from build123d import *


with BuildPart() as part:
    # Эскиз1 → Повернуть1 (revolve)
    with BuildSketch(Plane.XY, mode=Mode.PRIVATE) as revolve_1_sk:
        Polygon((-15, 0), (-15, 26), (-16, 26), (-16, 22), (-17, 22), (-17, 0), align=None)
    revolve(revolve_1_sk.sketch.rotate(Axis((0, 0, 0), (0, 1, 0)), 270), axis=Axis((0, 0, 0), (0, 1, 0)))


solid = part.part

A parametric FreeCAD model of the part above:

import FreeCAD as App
import Part
import Sketcher
from FreeCAD import Vector

doc = App.newDocument("Part")
body = doc.addObject("PartDesign::Body", "Body")

# Sketch on XY plane
sketch1 = body.newObject("Sketcher::SketchObject", "Sketch")
sketch1.AttachmentSupport = (doc.getObject("XY_Plane"), [""])
sketch1.MapMode = "FlatFace"
sketch1.addGeometry(Part.LineSegment(Vector(-15, 0, 0), Vector(-15, 26, 0)), False)
sketch1.addGeometry(Part.LineSegment(Vector(-15, 26, 0), Vector(-16, 26, 0)), False)
sketch1.addGeometry(Part.LineSegment(Vector(-16, 26, 0), Vector(-16, 22, 0)), False)
sketch1.addGeometry(Part.LineSegment(Vector(-16, 22, 0), Vector(-17, 22, 0)), False)
sketch1.addGeometry(Part.LineSegment(Vector(-17, 22, 0), Vector(-17, 0, 0)), False)
sketch1.addGeometry(Part.LineSegment(Vector(-17, 0, 0), Vector(-15, 0, 0)), False)
sketch1.addConstraint(Sketcher.Constraint("Coincident", 0, 2, 1, 1))
sketch1.addConstraint(Sketcher.Constraint("Coincident", 1, 2, 2, 1))
sketch1.addConstraint(Sketcher.Constraint("Coincident", 2, 2, 3, 1))
sketch1.addConstraint(Sketcher.Constraint("Coincident", 3, 2, 4, 1))
sketch1.addConstraint(Sketcher.Constraint("Coincident", 4, 2, 5, 1))
sketch1.addConstraint(Sketcher.Constraint("Coincident", 5, 2, 0, 1))
sketch1.addConstraint(Sketcher.Constraint("Vertical", 0))
sketch1.addConstraint(Sketcher.Constraint("Horizontal", 1))
sketch1.addConstraint(Sketcher.Constraint("Vertical", 2))
sketch1.addConstraint(Sketcher.Constraint("Horizontal", 3))
sketch1.addConstraint(Sketcher.Constraint("Vertical", 4))
sketch1.addConstraint(Sketcher.Constraint("Horizontal", 5))
sketch1.addConstraint(Sketcher.Constraint("PointOnObject", 4, 2, -1))
sketch1.addConstraint(Sketcher.Constraint("Equal", 1, 3))
sketch1.addConstraint(Sketcher.Constraint("DistanceX", 1, 2, 1, 1, 1.0))
sketch1.addConstraint(Sketcher.Constraint("DistanceY", 0, 1, 0, 2, 26.0))
sketch1.addConstraint(Sketcher.Constraint("DistanceY", 2, 2, 2, 1, 4.0))
sketch1.addConstraint(Sketcher.Constraint("DistanceX", 0, 2, -1, 1, 15.0))
revolution = body.newObject("PartDesign::Revolution", "Revolution")
revolution.Profile = sketch1
revolution.ReferenceAxis = (sketch1, ["V_Axis"])
revolution.Angle = 360

doc.recompute()
